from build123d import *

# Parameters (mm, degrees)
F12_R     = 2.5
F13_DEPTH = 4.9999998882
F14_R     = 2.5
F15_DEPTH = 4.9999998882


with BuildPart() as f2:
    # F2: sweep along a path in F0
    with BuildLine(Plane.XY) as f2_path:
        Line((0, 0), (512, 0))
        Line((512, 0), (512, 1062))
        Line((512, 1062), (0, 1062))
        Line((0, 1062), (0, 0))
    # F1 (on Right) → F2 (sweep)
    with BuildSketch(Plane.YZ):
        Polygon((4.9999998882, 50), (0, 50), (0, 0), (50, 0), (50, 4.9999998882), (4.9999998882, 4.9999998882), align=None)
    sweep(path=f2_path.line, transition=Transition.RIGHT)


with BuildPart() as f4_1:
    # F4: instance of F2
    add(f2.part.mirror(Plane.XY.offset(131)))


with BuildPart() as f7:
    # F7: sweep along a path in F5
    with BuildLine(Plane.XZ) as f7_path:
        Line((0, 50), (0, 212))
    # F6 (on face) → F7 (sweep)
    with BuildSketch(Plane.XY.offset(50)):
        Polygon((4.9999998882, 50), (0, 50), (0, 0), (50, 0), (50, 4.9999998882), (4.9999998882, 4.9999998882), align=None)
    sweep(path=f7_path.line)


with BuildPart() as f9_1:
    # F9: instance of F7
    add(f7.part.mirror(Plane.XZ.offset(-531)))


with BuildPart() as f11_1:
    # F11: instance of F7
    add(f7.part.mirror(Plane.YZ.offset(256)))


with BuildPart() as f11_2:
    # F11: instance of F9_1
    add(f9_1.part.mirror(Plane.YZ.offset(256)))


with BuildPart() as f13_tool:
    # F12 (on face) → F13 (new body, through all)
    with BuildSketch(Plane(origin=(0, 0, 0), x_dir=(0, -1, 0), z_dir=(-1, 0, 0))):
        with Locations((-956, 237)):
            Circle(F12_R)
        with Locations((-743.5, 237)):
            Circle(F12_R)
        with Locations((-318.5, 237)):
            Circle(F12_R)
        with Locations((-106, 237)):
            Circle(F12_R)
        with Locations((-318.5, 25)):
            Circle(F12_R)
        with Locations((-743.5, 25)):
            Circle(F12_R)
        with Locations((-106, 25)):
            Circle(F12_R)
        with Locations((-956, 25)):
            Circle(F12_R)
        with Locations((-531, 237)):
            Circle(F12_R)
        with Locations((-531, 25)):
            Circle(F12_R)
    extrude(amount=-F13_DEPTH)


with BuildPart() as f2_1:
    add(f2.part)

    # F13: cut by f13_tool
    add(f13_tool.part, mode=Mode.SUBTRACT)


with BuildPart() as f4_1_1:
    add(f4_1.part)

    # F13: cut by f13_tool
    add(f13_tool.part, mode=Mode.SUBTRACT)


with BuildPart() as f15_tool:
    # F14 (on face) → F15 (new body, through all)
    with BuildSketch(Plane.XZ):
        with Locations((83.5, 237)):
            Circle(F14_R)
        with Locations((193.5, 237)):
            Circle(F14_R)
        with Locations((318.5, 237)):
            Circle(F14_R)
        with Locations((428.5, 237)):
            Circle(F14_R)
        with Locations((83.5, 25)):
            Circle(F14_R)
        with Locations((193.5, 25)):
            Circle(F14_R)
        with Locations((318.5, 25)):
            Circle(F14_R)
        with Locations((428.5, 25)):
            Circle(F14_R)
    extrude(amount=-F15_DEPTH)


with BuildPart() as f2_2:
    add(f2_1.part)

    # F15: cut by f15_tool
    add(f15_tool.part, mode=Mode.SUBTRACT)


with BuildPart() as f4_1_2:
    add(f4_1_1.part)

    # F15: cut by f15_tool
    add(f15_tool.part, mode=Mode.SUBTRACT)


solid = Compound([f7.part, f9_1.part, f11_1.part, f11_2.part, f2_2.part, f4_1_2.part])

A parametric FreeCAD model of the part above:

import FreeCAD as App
import Part
import Sketcher
from FreeCAD import Vector
Q = App.Units.Quantity

doc = App.newDocument("Part")
body = doc.addObject("PartDesign::Body", "Body")

sketch1 = body.newObject("Sketcher::SketchObject", "Sketch")
sketch1.AttachmentSupport = (doc.getObject("YZ_Plane"), [""])
sketch1.MapMode = "FlatFace"
sketch1.addGeometry([
    Part.LineSegment(Vector(5, 50, 0), Vector(0, 50, 0)),
    Part.LineSegment(Vector(0, 50, 0), Vector(0, 0, 0)),
    Part.LineSegment(Vector(0, 0, 0), Vector(50, 0, 0)),
    Part.LineSegment(Vector(50, 0, 0), Vector(50, 5, 0)),
    Part.LineSegment(Vector(50, 5, 0), Vector(5, 5, 0)),
    Part.LineSegment(Vector(5, 5, 0), Vector(5, 50, 0)),
], False)
sketch1.addConstraint([
    Sketcher.Constraint("Coincident", 0, 2, 1, 1),
    Sketcher.Constraint("Coincident", 1, 2, 2, 1),
    Sketcher.Constraint("Coincident", 2, 2, 3, 1),
    Sketcher.Constraint("Coincident", 3, 2, 4, 1),
    Sketcher.Constraint("Coincident", 4, 2, 5, 1),
    Sketcher.Constraint("Coincident", 5, 2, 0, 1),
    Sketcher.Constraint("Horizontal", 0),
    Sketcher.Constraint("Vertical", 1),
    Sketcher.Constraint("Horizontal", 2),
    Sketcher.Constraint("Vertical", 3),
    Sketcher.Constraint("Horizontal", 4),
    Sketcher.Constraint("Vertical", 5),
    Sketcher.Constraint("Coincident", 1, 2, -1, 1),
    Sketcher.Constraint("Equal", 2, 1),
    Sketcher.Constraint("Equal", 0, 3),
    Sketcher.Constraint("DistanceX", 0, 2, 0, 1, Q("5 mm")),
    Sketcher.Constraint("DistanceX", 2, 1, 2, 2, Q("50 mm")),
])

sketch2 = body.newObject("Sketcher::SketchObject", "Sketch001")
sketch2.AttachmentSupport = (doc.getObject("XY_Plane"), [""])
sketch2.MapMode = "FlatFace"
sketch2.addGeometry([
    Part.LineSegment(Vector(0, 0, 0), Vector(512, 0, 0)),
    Part.LineSegment(Vector(512, 0, 0), Vector(512, 1062, 0)),
    Part.LineSegment(Vector(512, 1062, 0), Vector(0, 1062, 0)),
    Part.LineSegment(Vector(0, 1062, 0), Vector(0, 0, 0)),
], False)
sketch2.addConstraint([
    Sketcher.Constraint("Coincident", 0, 2, 1, 1),
    Sketcher.Constraint("Coincident", 1, 2, 2, 1),
    Sketcher.Constraint("Coincident", 2, 2, 3, 1),
    Sketcher.Constraint("Coincident", 3, 2, 0, 1),
    Sketcher.Constraint("Horizontal", 0),
    Sketcher.Constraint("Vertical", 1),
    Sketcher.Constraint("Horizontal", 2),
    Sketcher.Constraint("Vertical", 3),
    Sketcher.Constraint("Coincident", 3, 2, -1, 1),
    Sketcher.Constraint("DistanceX", 0, 1, 0, 2, Q("512 mm")),
    Sketcher.Constraint("DistanceY", 1, 1, 1, 2, Q("1062 mm")),
])
doc.recompute()

additivepipe = body.newObject("PartDesign::AdditivePipe", "AdditivePipe")
additivepipe.Profile = sketch1
additivepipe.Spine = (sketch2, ["Edge1", "Edge2", "Edge3", "Edge4"])
additivepipe.Transition = "Right corner"
body2 = doc.addObject("PartDesign::Body", "Body001")
doc.recompute()

mirroring = doc.addObject("Part::Mirroring", "Mirroring")
mirroring.Source = body
mirroring.Base = Vector(0, 0, 131)
mirroring.Normal = Vector(0, 0, 1)
body2.BaseFeature = mirroring
doc.recompute()
body3 = doc.addObject("PartDesign::Body", "Body002")

sketch3 = body3.newObject("Sketcher::SketchObject", "Sketch002")
sketch3.AttachmentSupport = (doc.getObject("XY_Plane002"), [""])
sketch3.MapMode = "FlatFace"
sketch3.AttachmentOffset = App.Placement(Vector(0, 0, 50), App.Rotation())
sketch3.addGeometry([
    Part.LineSegment(Vector(5, 50, 0), Vector(0, 50, 0)),
    Part.LineSegment(Vector(0, 50, 0), Vector(0, 0, 0)),
    Part.LineSegment(Vector(0, 0, 0), Vector(50, 0, 0)),
    Part.LineSegment(Vector(50, 0, 0), Vector(50, 5, 0)),
    Part.LineSegment(Vector(50, 5, 0), Vector(5, 5, 0)),
    Part.LineSegment(Vector(5, 5, 0), Vector(5, 50, 0)),
], False)
sketch3.addConstraint([
    Sketcher.Constraint("Coincident", 0, 2, 1, 1),
    Sketcher.Constraint("Coincident", 1, 2, 2, 1),
    Sketcher.Constraint("Coincident", 2, 2, 3, 1),
    Sketcher.Constraint("Coincident", 3, 2, 4, 1),
    Sketcher.Constraint("Coincident", 4, 2, 5, 1),
    Sketcher.Constraint("Coincident", 5, 2, 0, 1),
    Sketcher.Constraint("Horizontal", 0),
    Sketcher.Constraint("Vertical", 1),
    Sketcher.Constraint("Horizontal", 2),
    Sketcher.Constraint("Vertical", 3),
    Sketcher.Constraint("Horizontal", 4),
    Sketcher.Constraint("Vertical", 5),
    Sketcher.Constraint("Coincident", 1, 2, -1, 1),
    Sketcher.Constraint("Equal", 2, 1),
    Sketcher.Constraint("Equal", 0, 3),
    Sketcher.Constraint("DistanceX", 0, 2, 0, 1, Q("5 mm")),
    Sketcher.Constraint("DistanceX", 2, 1, 2, 2, Q("50 mm")),
])

sketch4 = body3.newObject("Sketcher::SketchObject", "Sketch003")
sketch4.AttachmentSupport = (doc.getObject("XZ_Plane002"), [""])
sketch4.MapMode = "FlatFace"
sketch4.addGeometry(Part.LineSegment(Vector(0, 50, 0), Vector(0, 212, 0)), False)
sketch4.addConstraint([
    Sketcher.Constraint("Vertical", 0),
    Sketcher.Constraint("PointOnObject", 0, 1, -2),
    Sketcher.Constraint("DistanceY", 0, 1, 0, 2, Q("162 mm")),
    Sketcher.Constraint("DistanceY", -1, 1, 0, 1, Q("50 mm")),
])
doc.recompute()

additivepipe2 = body3.newObject("PartDesign::AdditivePipe", "AdditivePipe001")
additivepipe2.Profile = sketch3
additivepipe2.Spine = (sketch4, ["Edge1"])
body4 = doc.addObject("PartDesign::Body", "Body003")
doc.recompute()

mirroring2 = doc.addObject("Part::Mirroring", "Mirroring001")
mirroring2.Source = body3
mirroring2.Base = Vector(0, 531, 0)
mirroring2.Normal = Vector(0, -1, 0)
body4.BaseFeature = mirroring2
doc.recompute()
body5 = doc.addObject("PartDesign::Body", "Body004")
doc.recompute()

mirroring3 = doc.addObject("Part::Mirroring", "Mirroring002")
mirroring3.Source = body3
mirroring3.Base = Vector(256, 0, 0)
mirroring3.Normal = Vector(1, 0, 0)
body5.BaseFeature = mirroring3
doc.recompute()
body6 = doc.addObject("PartDesign::Body", "Body005")
doc.recompute()

mirroring4 = doc.addObject("Part::Mirroring", "Mirroring003")
mirroring4.Source = body4
mirroring4.Base = Vector(256, 0, 0)
mirroring4.Normal = Vector(1, 0, 0)
body6.BaseFeature = mirroring4
doc.recompute()
body7 = doc.addObject("PartDesign::Body", "Body006")
body7.AllowCompound = True

sketch5 = body7.newObject("Sketcher::SketchObject", "Sketch004")
sketch5.AttachmentSupport = (doc.getObject("YZ_Plane006"), [""])
sketch5.MapMode = "FlatFace"
sketch5.addGeometry([
    Part.Circle(Vector(956, 237, 0), Vector(0, 0, 1), 2.5),
    Part.Circle(Vector(743.5, 237, 0), Vector(0, 0, 1), 2.5),
    Part.Circle(Vector(318.5, 237, 0), Vector(0, 0, 1), 2.5),
    Part.Circle(Vector(106, 237, 0), Vector(0, 0, 1), 2.5),
    Part.Circle(Vector(318.5, 25, 0), Vector(0, 0, 1), 2.5),
    Part.Circle(Vector(743.5, 25, 0), Vector(0, 0, 1), 2.5),
    Part.Circle(Vector(106, 25, 0), Vector(0, 0, 1), 2.5),
    Part.Circle(Vector(956, 25, 0), Vector(0, 0, 1), 2.5),
    Part.Circle(Vector(531, 237, 0), Vector(0, 0, 1), 2.5),
    Part.Circle(Vector(531, 25, 0), Vector(0, 0, 1), 2.5),
], False)
sketch5.addConstraint([
    Sketcher.Constraint("Equal", 0, 1),
    Sketcher.Constraint("Equal", 1, 2),
    Sketcher.Constraint("Equal", 2, 3),
    Sketcher.Constraint("Equal", 3, 4),
    Sketcher.Constraint("Equal", 4, 5),
    Sketcher.Constraint("Equal", 5, 6),
    Sketcher.Constraint("Equal", 6, 7),
    Sketcher.Constraint("Equal", 7, 8),
    Sketcher.Constraint("Equal", 8, 9),
    Sketcher.Constraint("Horizontal", 0, 3, 1, 3),
    Sketcher.Constraint("Horizontal", 1, 3, 2, 3),
    Sketcher.Constraint("Horizontal", 2, 3, 3, 3),
    Sketcher.Constraint("Horizontal", 4, 3, 5, 3),
    Sketcher.Constraint("Horizontal", 5, 3, 6, 3),
    Sketcher.Constraint("Horizontal", 6, 3, 7, 3),
    Sketcher.Constraint("Horizontal", 3, 3, 8, 3),
    Sketcher.Constraint("Horizontal", 7, 3, 9, 3),
    Sketcher.Constraint("Vertical", 2, 3, 4, 3),
    Sketcher.Constraint("Vertical", 1, 3, 5, 3),
    Sketcher.Constraint("Vertical", 3, 3, 6, 3),
    Sketcher.Constraint("Vertical", 0, 3, 7, 3),
    Sketcher.Constraint("Vertical", 8, 3, 9, 3),
    Sketcher.Constraint("Diameter", 0, Q("5 mm")),
    Sketcher.Constraint("DistanceX", -1, 1, 0, 3, Q("956 mm")),
    Sketcher.Constraint("DistanceY", -1, 1, 0, 3, Q("237 mm")),
    Sketcher.Constraint("DistanceX", -1, 1, 3, 3, Q("106 mm")),
    Sketcher.Constraint("DistanceY", -1, 1, 4, 3, Q("25 mm")),
    Sketcher.Constraint("DistanceX", -1, 1, 8, 3, Q("531 mm")),
    Sketcher.Constraint("DistanceX", 2, 3, 1, 3, Q("425 mm")),
    Sketcher.Constraint("DistanceX", -1, 1, 1, 3, Q("743.5 mm")),
])
pad1 = body7.newObject("PartDesign::Pad", "Pad")
pad1.Profile = sketch5
pad1.Length = 5
doc.recompute()

body8 = doc.addObject("PartDesign::Body", "Body007")
body8.BaseFeature = body7
boolean = body.newObject("PartDesign::Boolean", "Boolean")
boolean.Type = "Cut"
boolean.addObjects([body8])
doc.recompute()

boolean2 = body2.newObject("PartDesign::Boolean", "Boolean001")
boolean2.Type = "Cut"
boolean2.addObjects([body7])
body9 = doc.addObject("PartDesign::Body", "Body008")
body9.AllowCompound = True

sketch6 = body9.newObject("Sketcher::SketchObject", "Sketch005")
sketch6.AttachmentSupport = (doc.getObject("XZ_Plane008"), [""])
sketch6.MapMode = "FlatFace"
sketch6.addGeometry([
    Part.Circle(Vector(83.5, 237, 0), Vector(0, 0, 1), 2.5),
    Part.Circle(Vector(193.5, 237, 0), Vector(0, 0, 1), 2.5),
    Part.Circle(Vector(318.5, 237, 0), Vector(0, 0, 1), 2.5),
    Part.Circle(Vector(428.5, 237, 0), Vector(0, 0, 1), 2.5),
    Part.Circle(Vector(83.5, 25, 0), Vector(0, 0, 1), 2.5),
    Part.Circle(Vector(193.5, 25, 0), Vector(0, 0, 1), 2.5),
    Part.Circle(Vector(318.5, 25, 0), Vector(0, 0, 1), 2.5),
    Part.Circle(Vector(428.5, 25, 0), Vector(0, 0, 1), 2.5),
], False)
sketch6.addConstraint([
    Sketcher.Constraint("Equal", 0, 1),
    Sketcher.Constraint("Equal", 1, 2),
    Sketcher.Constraint("Equal", 2, 3),
    Sketcher.Constraint("Equal", 3, 4),
    Sketcher.Constraint("Equal", 4, 5),
    Sketcher.Constraint("Equal", 5, 6),
    Sketcher.Constraint("Equal", 6, 7),
    Sketcher.Constraint("Horizontal", 0, 3, 1, 3),
    Sketcher.Constraint("Horizontal", 1, 3, 2, 3),
    Sketcher.Constraint("Horizontal", 2, 3, 3, 3),
    Sketcher.Constraint("Horizontal", 4, 3, 5, 3),
    Sketcher.Constraint("Horizontal", 5, 3, 6, 3),
    Sketcher.Constraint("Horizontal", 6, 3, 7, 3),
    Sketcher.Constraint("Vertical", 0, 3, 4, 3),
    Sketcher.Constraint("Vertical", 1, 3, 5, 3),
    Sketcher.Constraint("Vertical", 2, 3, 6, 3),
    Sketcher.Constraint("Vertical", 3, 3, 7, 3),
    Sketcher.Constraint("Diameter", 0, Q("5 mm")),
    Sketcher.Constraint("DistanceY", -1, 1, 0, 3, Q("237 mm")),
    Sketcher.Constraint("DistanceY", -1, 1, 4, 3, Q("25 mm")),
    Sketcher.Constraint("DistanceX", 0, 3, 1, 3, Q("110 mm")),
    Sketcher.Constraint("DistanceX", 1, 3, 2, 3, Q("125 mm")),
    Sketcher.Constraint("DistanceX", 2, 3, 3, 3, Q("110 mm")),
    Sketcher.Constraint("DistanceX", -1, 1, 0, 3, Q("83.5 mm")),
])
pad2 = body9.newObject("PartDesign::Pad", "Pad001")
pad2.Profile = sketch6
pad2.Length = 5
pad2.Reversed = True
doc.recompute()

body10 = doc.addObject("PartDesign::Body", "Body009")
body10.BaseFeature = body9
boolean3 = body.newObject("PartDesign::Boolean", "Boolean002")
boolean3.Type = "Cut"
boolean3.addObjects([body10])
doc.recompute()

boolean4 = body2.newObject("PartDesign::Boolean", "Boolean003")
boolean4.Type = "Cut"
boolean4.addObjects([body9])
mirroring.Visibility = False
mirroring2.Visibility = False
mirroring3.Visibility = False
mirroring4.Visibility = False

doc.recompute()
